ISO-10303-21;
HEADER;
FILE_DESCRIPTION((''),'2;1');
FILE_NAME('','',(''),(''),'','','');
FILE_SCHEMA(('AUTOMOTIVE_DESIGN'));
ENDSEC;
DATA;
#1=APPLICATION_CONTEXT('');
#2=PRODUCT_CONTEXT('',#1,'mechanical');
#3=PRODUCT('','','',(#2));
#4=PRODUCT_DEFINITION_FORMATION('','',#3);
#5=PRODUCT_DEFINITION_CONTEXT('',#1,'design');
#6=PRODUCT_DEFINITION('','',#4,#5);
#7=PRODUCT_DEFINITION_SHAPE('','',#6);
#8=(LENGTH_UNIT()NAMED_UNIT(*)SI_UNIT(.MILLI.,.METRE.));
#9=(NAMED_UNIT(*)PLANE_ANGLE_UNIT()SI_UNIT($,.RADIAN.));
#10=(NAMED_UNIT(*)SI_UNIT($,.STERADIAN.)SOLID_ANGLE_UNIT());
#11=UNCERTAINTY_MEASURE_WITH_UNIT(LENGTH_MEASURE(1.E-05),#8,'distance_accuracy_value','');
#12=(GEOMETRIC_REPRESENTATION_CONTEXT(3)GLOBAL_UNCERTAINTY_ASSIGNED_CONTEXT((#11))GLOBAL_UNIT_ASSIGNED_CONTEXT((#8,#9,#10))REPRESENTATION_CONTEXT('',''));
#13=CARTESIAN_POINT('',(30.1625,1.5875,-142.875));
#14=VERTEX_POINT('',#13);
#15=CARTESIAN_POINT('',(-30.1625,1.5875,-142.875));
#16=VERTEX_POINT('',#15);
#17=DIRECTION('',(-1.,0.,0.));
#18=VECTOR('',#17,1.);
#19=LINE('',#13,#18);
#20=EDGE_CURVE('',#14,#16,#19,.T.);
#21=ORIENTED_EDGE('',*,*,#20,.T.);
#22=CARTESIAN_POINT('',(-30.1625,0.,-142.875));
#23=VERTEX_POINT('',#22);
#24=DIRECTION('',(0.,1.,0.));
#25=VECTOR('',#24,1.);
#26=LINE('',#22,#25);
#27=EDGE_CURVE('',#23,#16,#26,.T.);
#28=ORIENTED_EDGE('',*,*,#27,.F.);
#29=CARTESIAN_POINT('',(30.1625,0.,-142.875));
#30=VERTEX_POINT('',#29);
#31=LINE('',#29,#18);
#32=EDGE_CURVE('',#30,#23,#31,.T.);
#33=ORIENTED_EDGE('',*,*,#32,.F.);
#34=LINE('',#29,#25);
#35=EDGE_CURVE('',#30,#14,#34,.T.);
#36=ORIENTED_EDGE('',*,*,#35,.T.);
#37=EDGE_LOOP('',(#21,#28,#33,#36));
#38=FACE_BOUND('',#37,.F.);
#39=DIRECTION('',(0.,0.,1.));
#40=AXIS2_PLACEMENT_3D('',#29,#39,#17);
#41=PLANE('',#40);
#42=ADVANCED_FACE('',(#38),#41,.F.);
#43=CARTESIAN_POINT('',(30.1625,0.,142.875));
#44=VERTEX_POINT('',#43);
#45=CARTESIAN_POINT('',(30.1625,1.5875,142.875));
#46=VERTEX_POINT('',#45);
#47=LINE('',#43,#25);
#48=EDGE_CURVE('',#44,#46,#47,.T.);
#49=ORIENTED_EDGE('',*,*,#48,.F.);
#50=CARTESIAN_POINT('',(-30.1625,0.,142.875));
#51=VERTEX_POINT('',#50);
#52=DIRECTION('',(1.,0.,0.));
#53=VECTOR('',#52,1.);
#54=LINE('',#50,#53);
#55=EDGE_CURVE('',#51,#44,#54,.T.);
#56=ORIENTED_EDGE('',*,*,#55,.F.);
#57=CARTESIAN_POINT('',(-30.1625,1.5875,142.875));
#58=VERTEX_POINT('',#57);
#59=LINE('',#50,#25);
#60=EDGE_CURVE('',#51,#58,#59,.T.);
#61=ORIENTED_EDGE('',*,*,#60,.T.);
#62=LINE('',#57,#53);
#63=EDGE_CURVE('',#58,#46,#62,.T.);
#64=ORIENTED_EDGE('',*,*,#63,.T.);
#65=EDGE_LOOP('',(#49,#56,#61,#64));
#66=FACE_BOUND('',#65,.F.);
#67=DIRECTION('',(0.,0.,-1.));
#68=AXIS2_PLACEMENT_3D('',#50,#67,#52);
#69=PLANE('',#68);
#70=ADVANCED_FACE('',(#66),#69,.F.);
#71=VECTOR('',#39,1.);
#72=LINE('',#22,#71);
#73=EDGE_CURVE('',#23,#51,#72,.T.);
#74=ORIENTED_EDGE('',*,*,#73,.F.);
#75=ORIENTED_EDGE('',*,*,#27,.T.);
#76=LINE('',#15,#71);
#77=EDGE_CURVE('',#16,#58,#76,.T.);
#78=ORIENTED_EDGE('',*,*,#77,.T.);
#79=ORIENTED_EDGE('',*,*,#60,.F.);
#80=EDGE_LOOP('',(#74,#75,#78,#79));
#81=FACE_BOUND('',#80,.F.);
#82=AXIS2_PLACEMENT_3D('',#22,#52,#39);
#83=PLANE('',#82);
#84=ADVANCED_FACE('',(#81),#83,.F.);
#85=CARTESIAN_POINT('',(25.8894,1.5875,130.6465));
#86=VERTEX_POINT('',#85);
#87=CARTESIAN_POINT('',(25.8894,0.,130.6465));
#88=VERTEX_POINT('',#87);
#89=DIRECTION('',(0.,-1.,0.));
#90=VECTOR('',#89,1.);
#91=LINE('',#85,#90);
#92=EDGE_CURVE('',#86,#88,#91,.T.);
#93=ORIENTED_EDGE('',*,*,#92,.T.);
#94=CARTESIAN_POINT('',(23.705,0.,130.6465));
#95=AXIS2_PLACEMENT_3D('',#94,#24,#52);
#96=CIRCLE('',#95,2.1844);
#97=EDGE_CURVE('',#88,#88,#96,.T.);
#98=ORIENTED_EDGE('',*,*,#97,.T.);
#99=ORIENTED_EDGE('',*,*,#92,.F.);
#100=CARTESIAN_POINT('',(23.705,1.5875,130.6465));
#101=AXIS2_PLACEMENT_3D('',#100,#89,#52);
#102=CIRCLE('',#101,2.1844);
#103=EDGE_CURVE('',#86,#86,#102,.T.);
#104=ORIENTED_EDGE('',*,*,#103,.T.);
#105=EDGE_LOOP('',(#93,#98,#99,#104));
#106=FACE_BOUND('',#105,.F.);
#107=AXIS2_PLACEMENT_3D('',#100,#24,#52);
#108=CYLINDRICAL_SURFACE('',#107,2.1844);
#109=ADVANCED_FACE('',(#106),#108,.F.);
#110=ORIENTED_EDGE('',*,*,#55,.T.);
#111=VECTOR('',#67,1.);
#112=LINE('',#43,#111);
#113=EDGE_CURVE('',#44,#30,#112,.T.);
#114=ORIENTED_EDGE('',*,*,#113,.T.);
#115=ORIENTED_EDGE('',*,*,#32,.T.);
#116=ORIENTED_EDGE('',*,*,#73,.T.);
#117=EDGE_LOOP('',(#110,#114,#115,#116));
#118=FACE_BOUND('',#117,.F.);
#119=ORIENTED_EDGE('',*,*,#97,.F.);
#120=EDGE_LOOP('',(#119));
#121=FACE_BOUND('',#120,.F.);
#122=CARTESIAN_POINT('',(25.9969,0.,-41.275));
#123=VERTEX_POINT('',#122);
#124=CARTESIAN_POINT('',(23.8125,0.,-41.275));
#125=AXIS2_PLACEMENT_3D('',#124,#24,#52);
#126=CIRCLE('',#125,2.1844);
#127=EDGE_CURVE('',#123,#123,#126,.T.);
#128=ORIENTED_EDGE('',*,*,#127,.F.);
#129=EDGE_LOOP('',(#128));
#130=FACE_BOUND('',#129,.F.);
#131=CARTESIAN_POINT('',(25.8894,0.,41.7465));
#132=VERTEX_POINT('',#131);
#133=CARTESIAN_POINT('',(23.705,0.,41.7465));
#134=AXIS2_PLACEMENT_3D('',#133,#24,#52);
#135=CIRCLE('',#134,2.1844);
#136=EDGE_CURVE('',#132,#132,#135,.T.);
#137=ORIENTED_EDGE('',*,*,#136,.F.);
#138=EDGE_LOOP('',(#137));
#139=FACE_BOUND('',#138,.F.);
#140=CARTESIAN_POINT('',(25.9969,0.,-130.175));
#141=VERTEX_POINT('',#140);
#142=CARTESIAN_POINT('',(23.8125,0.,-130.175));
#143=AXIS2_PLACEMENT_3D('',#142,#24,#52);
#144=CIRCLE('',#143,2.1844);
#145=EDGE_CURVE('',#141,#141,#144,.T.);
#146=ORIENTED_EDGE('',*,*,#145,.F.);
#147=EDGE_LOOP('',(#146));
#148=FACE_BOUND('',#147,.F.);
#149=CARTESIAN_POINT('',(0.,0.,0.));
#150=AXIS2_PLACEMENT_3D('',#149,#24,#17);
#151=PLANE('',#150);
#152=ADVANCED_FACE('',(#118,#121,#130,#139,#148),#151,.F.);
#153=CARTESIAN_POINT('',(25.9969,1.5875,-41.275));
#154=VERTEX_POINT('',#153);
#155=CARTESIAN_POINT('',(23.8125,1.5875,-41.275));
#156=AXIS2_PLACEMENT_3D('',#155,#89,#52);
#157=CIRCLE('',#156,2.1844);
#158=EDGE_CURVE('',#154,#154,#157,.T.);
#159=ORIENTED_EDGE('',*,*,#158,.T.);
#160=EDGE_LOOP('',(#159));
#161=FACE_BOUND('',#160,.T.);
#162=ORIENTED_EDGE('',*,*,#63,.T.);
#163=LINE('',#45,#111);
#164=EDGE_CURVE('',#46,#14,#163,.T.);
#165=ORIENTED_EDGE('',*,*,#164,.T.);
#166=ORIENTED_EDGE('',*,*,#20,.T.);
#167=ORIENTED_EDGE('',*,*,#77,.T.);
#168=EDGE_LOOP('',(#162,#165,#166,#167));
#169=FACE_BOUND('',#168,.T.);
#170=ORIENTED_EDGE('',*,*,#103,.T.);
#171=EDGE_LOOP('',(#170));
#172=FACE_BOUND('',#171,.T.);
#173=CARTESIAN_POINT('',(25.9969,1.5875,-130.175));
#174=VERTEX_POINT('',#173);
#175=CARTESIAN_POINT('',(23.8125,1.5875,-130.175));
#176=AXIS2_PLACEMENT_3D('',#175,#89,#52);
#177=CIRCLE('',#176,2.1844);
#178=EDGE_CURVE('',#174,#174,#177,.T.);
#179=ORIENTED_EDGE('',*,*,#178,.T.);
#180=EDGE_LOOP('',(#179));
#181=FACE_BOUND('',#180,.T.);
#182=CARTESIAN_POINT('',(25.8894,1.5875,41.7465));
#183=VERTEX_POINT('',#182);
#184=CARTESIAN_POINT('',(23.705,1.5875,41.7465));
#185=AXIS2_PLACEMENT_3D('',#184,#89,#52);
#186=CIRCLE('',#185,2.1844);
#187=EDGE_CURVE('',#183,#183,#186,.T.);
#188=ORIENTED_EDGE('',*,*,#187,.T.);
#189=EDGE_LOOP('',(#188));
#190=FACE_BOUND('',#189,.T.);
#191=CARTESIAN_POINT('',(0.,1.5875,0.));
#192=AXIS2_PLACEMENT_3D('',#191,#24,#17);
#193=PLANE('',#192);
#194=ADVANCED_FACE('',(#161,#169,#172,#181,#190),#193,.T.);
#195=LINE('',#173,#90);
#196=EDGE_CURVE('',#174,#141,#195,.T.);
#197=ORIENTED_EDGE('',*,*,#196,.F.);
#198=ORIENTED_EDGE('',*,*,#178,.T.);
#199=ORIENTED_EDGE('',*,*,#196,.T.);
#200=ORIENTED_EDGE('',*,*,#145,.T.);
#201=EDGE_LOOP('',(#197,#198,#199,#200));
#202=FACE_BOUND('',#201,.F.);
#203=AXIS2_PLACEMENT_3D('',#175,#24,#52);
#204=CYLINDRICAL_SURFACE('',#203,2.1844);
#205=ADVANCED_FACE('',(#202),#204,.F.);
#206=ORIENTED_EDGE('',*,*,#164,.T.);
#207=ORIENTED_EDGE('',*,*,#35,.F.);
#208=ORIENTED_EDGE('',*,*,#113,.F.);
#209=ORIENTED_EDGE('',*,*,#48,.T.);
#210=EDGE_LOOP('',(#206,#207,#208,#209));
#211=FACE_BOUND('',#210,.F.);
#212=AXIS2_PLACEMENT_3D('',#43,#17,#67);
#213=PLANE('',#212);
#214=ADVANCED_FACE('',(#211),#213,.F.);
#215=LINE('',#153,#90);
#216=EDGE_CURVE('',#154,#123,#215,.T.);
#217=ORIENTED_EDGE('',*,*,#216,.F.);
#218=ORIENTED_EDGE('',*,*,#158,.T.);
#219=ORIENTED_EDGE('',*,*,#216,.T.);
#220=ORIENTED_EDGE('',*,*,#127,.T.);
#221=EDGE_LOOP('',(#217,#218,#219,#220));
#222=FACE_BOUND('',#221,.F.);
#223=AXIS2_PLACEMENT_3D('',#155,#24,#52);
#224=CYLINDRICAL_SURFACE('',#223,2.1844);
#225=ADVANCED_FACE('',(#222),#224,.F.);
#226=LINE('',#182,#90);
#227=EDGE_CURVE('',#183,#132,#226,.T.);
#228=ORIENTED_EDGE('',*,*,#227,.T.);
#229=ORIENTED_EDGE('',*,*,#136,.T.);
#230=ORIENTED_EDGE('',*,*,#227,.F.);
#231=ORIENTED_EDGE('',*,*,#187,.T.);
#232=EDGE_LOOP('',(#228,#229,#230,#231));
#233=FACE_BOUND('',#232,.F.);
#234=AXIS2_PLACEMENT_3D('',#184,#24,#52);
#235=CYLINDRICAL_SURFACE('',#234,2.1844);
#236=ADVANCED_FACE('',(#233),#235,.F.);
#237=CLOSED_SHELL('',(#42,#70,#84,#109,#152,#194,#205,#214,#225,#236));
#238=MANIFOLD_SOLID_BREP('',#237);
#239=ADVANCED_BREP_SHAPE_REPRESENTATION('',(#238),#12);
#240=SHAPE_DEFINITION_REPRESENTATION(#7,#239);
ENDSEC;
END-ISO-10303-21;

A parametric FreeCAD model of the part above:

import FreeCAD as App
import Part
import Sketcher
Q = App.Units.Quantity


def add_polygon(sketch, points):
    """Adds a closed chain of lines whose ends are joined by coincident constraints."""
    first, n = sketch.GeometryCount, len(points)
    for a, b in zip(points, points[1:] + points[:1]):
        sketch.addGeometry(Part.LineSegment(App.Vector(*a, 0), App.Vector(*b, 0)), False)
    for i in range(n):
        sketch.addConstraint(Sketcher.Constraint("Coincident", first + i, 2, first + (i + 1) % n, 1))

doc = App.newDocument("Part")
body = doc.addObject("PartDesign::Body", "Body")

# Sketch on XZ plane
sketch1 = body.newObject("Sketcher::SketchObject", "Sketch")
sketch1.AttachmentSupport = (doc.getObject("XZ_Plane"), [""])
sketch1.MapMode = "FlatFace"
add_polygon(sketch1, [(30.1625, 142.875), (30.1625, -142.875), (-30.1625, -142.875), (-30.1625, 142.875)])  # lines 0-3
sketch1.addConstraint(Sketcher.Constraint("Vertical", 0))
sketch1.addConstraint(Sketcher.Constraint("Horizontal", 1))
sketch1.addConstraint(Sketcher.Constraint("Vertical", 2))
sketch1.addConstraint(Sketcher.Constraint("Horizontal", 3))
sketch1.addConstraint(Sketcher.Constraint("Symmetric", 0, 2, 2, 2, -1, 1))
sketch1.addConstraint(Sketcher.Constraint("DistanceY", 0, 2, 0, 1, Q("11.25 in")))
sketch1.addConstraint(Sketcher.Constraint("DistanceX", 1, 2, 1, 1, Q("2.375 in")))
pad1 = body.newObject("PartDesign::Pad", "Pad")
pad1.Profile = sketch1
pad1.Length = Q("0.0625 in")
pad1.Reversed = True

# Sketch on XZ plane
sketch2 = body.newObject("Sketcher::SketchObject", "Sketch001")
sketch2.AttachmentSupport = (doc.getObject("XZ_Plane"), [""])
sketch2.MapMode = "FlatFace"
sketch2.AttachmentOffset = App.Placement(App.Vector(0, 0, -0.0625 * 25.4), App.Rotation())
sketch2.addGeometry(Part.Circle(App.Vector(23.705, 130.6465, 0), App.Vector(0, 0, 1), 2.1844), False)
sketch2.addGeometry(Part.Circle(App.Vector(23.705, 41.7465, 0), App.Vector(0, 0, 1), 2.1844), False)
sketch2.addGeometry(Part.Circle(App.Vector(23.8125, -130.175, 0), App.Vector(0, 0, 1), 2.1844), False)
sketch2.addGeometry(Part.Circle(App.Vector(23.8125, -41.275, 0), App.Vector(0, 0, 1), 2.1844), False)
sketch2.addConstraint(Sketcher.Constraint("Equal", 0, 1))
sketch2.addConstraint(Sketcher.Constraint("Equal", 1, 2))
sketch2.addConstraint(Sketcher.Constraint("Equal", 2, 3))
sketch2.addConstraint(Sketcher.Constraint("Vertical", 0, 3, 1, 3))
sketch2.addConstraint(Sketcher.Constraint("Vertical", 2, 3, 3, 3))
sketch2.addConstraint(Sketcher.Constraint("Diameter", 0, Q("0.172 in")))
sketch2.addConstraint(Sketcher.Constraint("DistanceY", 1, 3, 0, 3, Q("3.5 in")))
sketch2.addConstraint(Sketcher.Constraint("DistanceY", 2, 3, 3, 3, Q("3.5 in")))
sketch2.addConstraint(Sketcher.Constraint("DistanceX", -1, 1, 2, 3, Q("0.9375 in")))
sketch2.addConstraint(Sketcher.Constraint("DistanceY", 2, 3, -1, 1, Q("5.125 in")))
sketch2.addConstraint(Sketcher.Constraint("DistanceX", -1, 1, 0, 3, 23.705))
sketch2.addConstraint(Sketcher.Constraint("DistanceY", -1, 1, 0, 3, 130.6465))
pocket1 = body.newObject("PartDesign::Pocket", "Pocket")
pocket1.Profile = sketch2
pocket1.Length = Q("0.0625 in")
pocket1.Reversed = True

doc.recompute()
